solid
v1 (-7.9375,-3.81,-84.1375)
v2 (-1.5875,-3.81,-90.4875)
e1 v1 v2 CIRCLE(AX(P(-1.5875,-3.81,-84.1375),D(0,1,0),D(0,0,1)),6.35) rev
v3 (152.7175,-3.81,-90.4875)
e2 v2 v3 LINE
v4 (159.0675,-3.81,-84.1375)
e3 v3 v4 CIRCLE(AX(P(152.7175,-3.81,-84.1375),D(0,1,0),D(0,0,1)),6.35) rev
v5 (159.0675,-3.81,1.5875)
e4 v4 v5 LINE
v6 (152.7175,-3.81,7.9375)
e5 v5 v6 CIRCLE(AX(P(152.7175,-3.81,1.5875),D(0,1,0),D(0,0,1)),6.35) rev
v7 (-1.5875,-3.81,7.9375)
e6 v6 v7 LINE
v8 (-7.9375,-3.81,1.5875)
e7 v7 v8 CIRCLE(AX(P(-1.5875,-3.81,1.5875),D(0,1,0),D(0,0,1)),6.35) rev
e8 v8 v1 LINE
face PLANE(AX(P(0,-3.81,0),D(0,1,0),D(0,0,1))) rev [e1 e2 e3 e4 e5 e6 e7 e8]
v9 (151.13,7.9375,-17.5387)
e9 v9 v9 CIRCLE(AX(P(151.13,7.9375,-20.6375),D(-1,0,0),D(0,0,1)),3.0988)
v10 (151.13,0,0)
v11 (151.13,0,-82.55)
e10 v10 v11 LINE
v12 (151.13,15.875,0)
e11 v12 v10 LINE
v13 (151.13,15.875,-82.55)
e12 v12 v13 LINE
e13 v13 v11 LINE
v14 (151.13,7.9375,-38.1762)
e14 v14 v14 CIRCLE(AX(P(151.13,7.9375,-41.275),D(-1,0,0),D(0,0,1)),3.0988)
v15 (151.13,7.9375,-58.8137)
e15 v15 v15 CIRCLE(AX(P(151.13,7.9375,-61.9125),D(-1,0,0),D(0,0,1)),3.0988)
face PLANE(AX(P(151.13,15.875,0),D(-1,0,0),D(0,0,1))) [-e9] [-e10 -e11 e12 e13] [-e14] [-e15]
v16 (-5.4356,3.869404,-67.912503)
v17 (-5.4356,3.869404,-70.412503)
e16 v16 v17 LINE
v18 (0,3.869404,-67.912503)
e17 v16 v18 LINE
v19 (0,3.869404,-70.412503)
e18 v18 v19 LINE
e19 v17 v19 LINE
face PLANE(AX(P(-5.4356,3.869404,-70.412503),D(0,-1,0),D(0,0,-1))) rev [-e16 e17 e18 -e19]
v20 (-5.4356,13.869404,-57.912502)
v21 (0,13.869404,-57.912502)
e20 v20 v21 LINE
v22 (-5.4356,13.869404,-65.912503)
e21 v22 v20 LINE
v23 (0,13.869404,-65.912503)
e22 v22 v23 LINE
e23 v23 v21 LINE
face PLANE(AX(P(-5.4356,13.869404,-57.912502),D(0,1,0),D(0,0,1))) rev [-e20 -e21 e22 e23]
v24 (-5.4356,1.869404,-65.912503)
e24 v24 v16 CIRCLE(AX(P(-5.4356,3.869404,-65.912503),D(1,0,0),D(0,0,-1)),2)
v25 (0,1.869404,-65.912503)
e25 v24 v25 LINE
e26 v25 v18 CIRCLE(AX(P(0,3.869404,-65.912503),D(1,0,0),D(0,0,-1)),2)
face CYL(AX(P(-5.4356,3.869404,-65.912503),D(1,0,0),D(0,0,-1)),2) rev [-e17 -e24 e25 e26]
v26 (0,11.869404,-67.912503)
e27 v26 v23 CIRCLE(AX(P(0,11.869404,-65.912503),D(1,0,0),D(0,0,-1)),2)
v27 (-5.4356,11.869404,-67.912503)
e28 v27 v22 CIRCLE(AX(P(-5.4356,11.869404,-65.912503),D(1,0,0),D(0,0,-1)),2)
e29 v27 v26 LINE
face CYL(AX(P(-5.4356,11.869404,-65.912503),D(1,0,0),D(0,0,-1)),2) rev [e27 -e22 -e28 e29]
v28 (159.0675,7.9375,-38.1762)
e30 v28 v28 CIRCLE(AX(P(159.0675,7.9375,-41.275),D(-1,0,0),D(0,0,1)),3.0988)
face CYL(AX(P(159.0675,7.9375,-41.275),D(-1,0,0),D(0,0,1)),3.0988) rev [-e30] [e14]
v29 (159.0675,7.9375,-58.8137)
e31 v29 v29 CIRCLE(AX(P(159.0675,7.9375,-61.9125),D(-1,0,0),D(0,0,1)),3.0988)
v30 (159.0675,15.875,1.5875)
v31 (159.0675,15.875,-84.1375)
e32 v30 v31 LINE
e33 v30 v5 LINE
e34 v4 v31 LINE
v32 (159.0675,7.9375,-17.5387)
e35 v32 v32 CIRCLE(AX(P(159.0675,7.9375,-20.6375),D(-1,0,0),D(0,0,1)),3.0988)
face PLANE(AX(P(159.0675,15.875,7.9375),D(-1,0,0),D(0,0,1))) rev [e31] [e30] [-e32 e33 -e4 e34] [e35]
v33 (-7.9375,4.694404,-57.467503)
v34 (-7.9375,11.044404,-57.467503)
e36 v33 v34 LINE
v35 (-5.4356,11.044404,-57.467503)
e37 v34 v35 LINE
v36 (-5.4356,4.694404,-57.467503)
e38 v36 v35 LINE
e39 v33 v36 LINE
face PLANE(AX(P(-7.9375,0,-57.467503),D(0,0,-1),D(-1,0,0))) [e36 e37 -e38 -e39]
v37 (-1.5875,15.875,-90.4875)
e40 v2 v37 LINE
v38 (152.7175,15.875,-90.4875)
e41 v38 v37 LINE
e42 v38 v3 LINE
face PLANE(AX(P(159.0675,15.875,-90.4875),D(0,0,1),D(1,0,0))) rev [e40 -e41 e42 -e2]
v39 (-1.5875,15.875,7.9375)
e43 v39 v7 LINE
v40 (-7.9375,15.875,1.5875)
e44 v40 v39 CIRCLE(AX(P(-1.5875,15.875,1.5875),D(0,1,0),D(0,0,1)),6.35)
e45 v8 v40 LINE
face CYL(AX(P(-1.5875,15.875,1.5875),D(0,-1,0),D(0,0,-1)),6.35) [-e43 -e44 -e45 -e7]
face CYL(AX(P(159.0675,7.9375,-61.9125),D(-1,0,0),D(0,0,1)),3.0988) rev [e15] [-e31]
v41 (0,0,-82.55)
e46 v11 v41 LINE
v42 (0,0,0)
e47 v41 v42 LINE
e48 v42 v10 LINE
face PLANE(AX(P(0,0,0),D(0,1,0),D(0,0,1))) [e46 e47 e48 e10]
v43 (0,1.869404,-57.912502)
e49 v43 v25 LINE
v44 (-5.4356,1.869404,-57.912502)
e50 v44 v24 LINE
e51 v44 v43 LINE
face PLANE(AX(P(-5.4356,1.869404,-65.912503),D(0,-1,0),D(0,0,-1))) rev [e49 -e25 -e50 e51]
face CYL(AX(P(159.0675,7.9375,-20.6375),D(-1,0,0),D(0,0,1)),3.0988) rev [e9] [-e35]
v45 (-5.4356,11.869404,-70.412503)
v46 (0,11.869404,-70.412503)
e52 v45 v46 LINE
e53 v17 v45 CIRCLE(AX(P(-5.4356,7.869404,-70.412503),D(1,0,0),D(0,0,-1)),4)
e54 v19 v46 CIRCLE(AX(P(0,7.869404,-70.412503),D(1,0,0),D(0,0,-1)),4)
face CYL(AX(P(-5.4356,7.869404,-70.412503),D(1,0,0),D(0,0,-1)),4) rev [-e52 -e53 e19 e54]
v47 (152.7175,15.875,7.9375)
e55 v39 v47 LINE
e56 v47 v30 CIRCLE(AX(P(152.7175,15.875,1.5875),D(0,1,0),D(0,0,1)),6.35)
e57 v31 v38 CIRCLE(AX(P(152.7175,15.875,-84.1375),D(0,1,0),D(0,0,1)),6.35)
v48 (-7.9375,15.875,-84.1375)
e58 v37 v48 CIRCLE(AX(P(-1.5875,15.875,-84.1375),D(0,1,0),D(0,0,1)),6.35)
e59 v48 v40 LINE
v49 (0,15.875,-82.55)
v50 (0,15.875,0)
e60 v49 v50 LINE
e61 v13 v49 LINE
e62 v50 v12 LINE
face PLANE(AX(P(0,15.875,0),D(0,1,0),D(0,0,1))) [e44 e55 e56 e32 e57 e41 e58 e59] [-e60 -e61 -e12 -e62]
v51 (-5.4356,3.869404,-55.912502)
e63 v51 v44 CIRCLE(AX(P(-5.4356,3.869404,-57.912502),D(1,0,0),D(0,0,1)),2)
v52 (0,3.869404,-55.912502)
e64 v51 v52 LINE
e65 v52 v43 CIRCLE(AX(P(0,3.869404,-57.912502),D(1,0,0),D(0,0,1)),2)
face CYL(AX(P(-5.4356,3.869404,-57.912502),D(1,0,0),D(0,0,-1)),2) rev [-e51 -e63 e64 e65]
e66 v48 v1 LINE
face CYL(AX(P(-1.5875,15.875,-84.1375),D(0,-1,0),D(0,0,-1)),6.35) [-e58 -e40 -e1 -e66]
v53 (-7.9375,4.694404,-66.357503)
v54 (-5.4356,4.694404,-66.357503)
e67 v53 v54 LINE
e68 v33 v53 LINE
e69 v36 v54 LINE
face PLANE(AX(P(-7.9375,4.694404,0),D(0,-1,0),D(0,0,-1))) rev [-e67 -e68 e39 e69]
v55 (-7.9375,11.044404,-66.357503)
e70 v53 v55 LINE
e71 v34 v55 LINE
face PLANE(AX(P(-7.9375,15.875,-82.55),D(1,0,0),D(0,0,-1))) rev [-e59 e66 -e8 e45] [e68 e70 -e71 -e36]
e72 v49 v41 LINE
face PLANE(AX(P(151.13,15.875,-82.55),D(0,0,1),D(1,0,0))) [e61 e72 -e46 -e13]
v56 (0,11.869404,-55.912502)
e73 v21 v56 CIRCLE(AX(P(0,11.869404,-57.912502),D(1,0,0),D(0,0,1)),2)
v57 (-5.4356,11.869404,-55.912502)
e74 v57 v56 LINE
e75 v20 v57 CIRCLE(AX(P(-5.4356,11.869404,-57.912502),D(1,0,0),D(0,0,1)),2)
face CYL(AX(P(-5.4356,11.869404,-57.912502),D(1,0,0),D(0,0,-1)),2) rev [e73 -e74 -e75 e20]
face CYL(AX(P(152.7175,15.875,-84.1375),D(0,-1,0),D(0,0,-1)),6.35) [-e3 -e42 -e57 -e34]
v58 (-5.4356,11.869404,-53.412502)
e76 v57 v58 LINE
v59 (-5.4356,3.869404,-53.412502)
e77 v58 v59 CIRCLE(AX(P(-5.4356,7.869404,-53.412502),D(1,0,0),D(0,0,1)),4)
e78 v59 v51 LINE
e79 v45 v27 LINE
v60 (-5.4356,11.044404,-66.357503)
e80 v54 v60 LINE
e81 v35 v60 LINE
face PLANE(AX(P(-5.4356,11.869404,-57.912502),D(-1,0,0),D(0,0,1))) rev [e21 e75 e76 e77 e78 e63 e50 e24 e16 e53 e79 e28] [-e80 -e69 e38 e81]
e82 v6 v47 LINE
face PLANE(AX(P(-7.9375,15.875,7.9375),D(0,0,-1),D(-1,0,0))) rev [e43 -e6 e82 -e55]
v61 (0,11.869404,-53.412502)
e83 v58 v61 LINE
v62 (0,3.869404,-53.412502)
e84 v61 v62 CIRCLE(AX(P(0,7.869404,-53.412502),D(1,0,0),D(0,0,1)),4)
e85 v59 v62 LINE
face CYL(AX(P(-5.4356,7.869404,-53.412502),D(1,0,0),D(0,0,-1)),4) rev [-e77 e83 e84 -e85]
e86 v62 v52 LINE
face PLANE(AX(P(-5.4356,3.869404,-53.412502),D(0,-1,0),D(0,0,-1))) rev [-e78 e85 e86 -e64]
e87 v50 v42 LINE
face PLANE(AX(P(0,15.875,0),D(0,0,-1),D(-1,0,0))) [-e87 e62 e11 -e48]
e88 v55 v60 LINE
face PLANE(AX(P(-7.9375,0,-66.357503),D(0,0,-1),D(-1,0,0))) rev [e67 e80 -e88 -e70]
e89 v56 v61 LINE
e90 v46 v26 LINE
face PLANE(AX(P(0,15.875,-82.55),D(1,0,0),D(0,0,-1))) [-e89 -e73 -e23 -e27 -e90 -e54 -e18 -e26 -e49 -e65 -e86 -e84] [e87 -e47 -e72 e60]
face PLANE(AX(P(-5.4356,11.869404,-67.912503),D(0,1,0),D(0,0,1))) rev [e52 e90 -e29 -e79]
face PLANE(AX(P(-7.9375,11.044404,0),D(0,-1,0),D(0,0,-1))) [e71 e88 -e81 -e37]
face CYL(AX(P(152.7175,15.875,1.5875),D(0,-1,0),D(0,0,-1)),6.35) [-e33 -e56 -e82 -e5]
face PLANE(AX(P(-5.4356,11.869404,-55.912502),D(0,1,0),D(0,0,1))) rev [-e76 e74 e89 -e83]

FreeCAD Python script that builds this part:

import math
import FreeCAD as App
import Part
import Sketcher
from FreeCAD import Vector
Q = App.Units.Quantity


def edges_at(feature, points):
    """Names of the edges that pass closest to the given points."""
    edges = feature.Shape.Edges
    near = lambda p: min(range(len(edges)), key=lambda i: edges[i].distToShape(Part.Vertex(*p))[0])
    return sorted({f"Edge{near(p) + 1}" for p in points})


def add_polygon(sketch, points):
    """Adds a closed chain of lines whose ends are joined by coincident constraints."""
    first, n = sketch.GeometryCount, len(points)
    for a, b in zip(points, points[1:] + points[:1]):
        sketch.addGeometry(Part.LineSegment(App.Vector(*a, 0), App.Vector(*b, 0)), False)
    for i in range(n):
        sketch.addConstraint(Sketcher.Constraint("Coincident", first + i, 2, first + (i + 1) % n, 1))

doc = App.newDocument("Part")
body = doc.addObject("PartDesign::Body", "Body")

# Sketch on XZ plane
sketch1 = doc.addObject("Sketcher::SketchObject", "Sketch")
body.addObject(sketch1)
sketch1.AttachmentSupport = (doc.XZ_Plane, [""])
sketch1.MapMode = "FlatFace"
add_polygon(sketch1, [(-8, 8), (159, 8), (159, -90), (-8, -90)])  # lines 0-3
add_polygon(sketch1, [(151, 0), (0, 0), (0, -83), (151, -83)])  # lines 4-7
sketch1.addConstraint([
    Sketcher.Constraint("Horizontal", 0),
    Sketcher.Constraint("Vertical", 1),
    Sketcher.Constraint("Horizontal", 2),
    Sketcher.Constraint("Vertical", 3),
    Sketcher.Constraint("Horizontal", 4),
    Sketcher.Constraint("Vertical", 5),
    Sketcher.Constraint("Horizontal", 6),
    Sketcher.Constraint("Vertical", 7),
    Sketcher.Constraint("Coincident", 4, 2, -1, 1),
    Sketcher.Constraint("DistanceX", 4, 2, 4, 1, Q("5.95 in")),
    Sketcher.Constraint("DistanceY", 5, 2, 5, 1, Q("3.25 in")),
    Sketcher.Constraint("DistanceX", 0, 1, 0, 2, Q("6.575 in")),
    Sketcher.Constraint("DistanceY", 1, 2, 1, 1, Q("3.875 in")),
    Sketcher.Constraint("DistanceY", -1, 1, 0, 2, Q("0.3125 in")),
    Sketcher.Constraint("DistanceX", 2, 2, -1, 1, Q("0.3125 in")),
])
pad1 = doc.addObject("PartDesign::Pad", "Pad")
body.addObject(pad1)
pad1.Profile = sketch1
pad1.Length = Q("0.625 in")
pad1.Reversed = True

# Sketch on XZ plane
sketch2 = doc.addObject("Sketcher::SketchObject", "Sketch001")
body.addObject(sketch2)
sketch2.AttachmentSupport = (doc.XZ_Plane, [""])
sketch2.MapMode = "FlatFace"
add_polygon(sketch2, [(-8, 8), (-8, -90), (159, -90), (159, 8)])  # lines 0-3
sketch2.addConstraint([
    Sketcher.Constraint("Vertical", 0),
    Sketcher.Constraint("Horizontal", 1),
    Sketcher.Constraint("Vertical", 2),
    Sketcher.Constraint("Horizontal", 3),
    Sketcher.Constraint("DistanceX", 1, 1, 1, 2, Q("6.575 in")),
    Sketcher.Constraint("DistanceY", 0, 2, 0, 1, Q("3.875 in")),
    Sketcher.Constraint("DistanceX", 0, 2, -1, 1, Q("0.3125 in")),
    Sketcher.Constraint("DistanceY", 0, 2, -1, 1, Q("3.5625 in")),
])
pad2 = doc.addObject("PartDesign::Pad", "Pad001")
body.addObject(pad2)
pad2.Profile = sketch2
pad2.Length = Q("0.15 in")
doc.recompute()

fillet = doc.addObject("PartDesign::Fillet", "Fillet")
body.addObject(fillet)
fillet.Base = (pad2, edges_at(pad2, [
    (-7.938, 6.032, 7.938),
    (-7.938, 6.032, -90.487),
    (159.067, 6.032, -90.487),
    (159.067, 6.032, 7.938),
]))
fillet.Radius = Q("0.25 in")

# Sketch on YZ plane
sketch3 = doc.addObject("Sketcher::SketchObject", "Sketch002")
body.addObject(sketch3)
sketch3.AttachmentSupport = (doc.YZ_Plane, [""])
sketch3.MapMode = "FlatFace"
sketch3.AttachmentOffset = App.Placement(Vector(0, 0, 5.95 * 25.4), App.Rotation())
sketch3.addGeometry([
    Part.Circle(Vector(7.9, -61.9, 0), Vector(0, 0, 1), 3.1),  # 0
    Part.ArcOfCircle(Part.Circle(Vector(7.9, -41.3, 0), Vector(0, 0, 1), 3.1), math.radians(90), math.radians(180)),  # 1
    Part.ArcOfCircle(Part.Circle(Vector(7.9, -41.3, 0), Vector(0, 0, 1), 3.1), math.radians(0), math.radians(90)),  # 2
    Part.ArcOfCircle(Part.Circle(Vector(7.9, -41.3, 0), Vector(0, 0, 1), 3.1), math.radians(-90), math.radians(0)),  # 3
    Part.ArcOfCircle(Part.Circle(Vector(7.9, -41.3, 0), Vector(0, 0, 1), 3.1), math.radians(180), math.radians(270)),  # 4
    Part.Circle(Vector(7.9, -20.6, 0), Vector(0, 0, 1), 3.1),  # 5
], False)
sketch3.addConstraint([
    Sketcher.Constraint("Tangent", 1, 1, 2, 2),
    Sketcher.Constraint("Tangent", 2, 1, 3, 2),
    Sketcher.Constraint("Tangent", 3, 1, 4, 2),
    Sketcher.Constraint("Tangent", 4, 1, 1, 2),
    Sketcher.Constraint("Equal", 0, 1),
    Sketcher.Constraint("Equal", 1, 2),
    Sketcher.Constraint("Equal", 4, 5),
    Sketcher.Constraint("Horizontal", 4, 3, 2, 1),
    Sketcher.Constraint("Horizontal", 2, 1, 4, 1),
    Sketcher.Constraint("Vertical", 0, 3, 1, 3),
    Sketcher.Constraint("Vertical", 4, 3, 5, 3),
    Sketcher.Constraint("Vertical", 5, 3, 1, 1),
    Sketcher.Constraint("Vertical", 1, 1, 3, 1),
    Sketcher.Constraint("Diameter", 0, Q("0.244 in")),
    Sketcher.Constraint("DistanceX", -1, 1, 0, 3, Q("0.3125 in")),
    Sketcher.Constraint("DistanceY", 0, 3, -1, 1, Q("2.4375 in")),
    Sketcher.Constraint("DistanceY", 1, 3, -1, 1, Q("1.625 in")),
    Sketcher.Constraint("DistanceY", 5, 3, -1, 1, Q("0.8125 in")),
])
pocket1 = doc.addObject("PartDesign::Pocket", "Pocket")
body.addObject(pocket1)
pocket1.Profile = sketch3
pocket1.Type = "ThroughAll"
pocket1.Reversed = True

# Sketch on YZ plane
sketch4 = doc.addObject("Sketcher::SketchObject", "Sketch003")
body.addObject(sketch4)
sketch4.AttachmentSupport = (doc.YZ_Plane, [""])
sketch4.MapMode = "FlatFace"
sketch4.addGeometry([
    Part.LineSegment(Vector(13.9, -65.9, 0), Vector(13.9, -57.9, 0)),  # 0
    Part.ArcOfCircle(Part.Circle(Vector(11.9, -57.9, 0), Vector(0, 0, 1), 2), math.radians(0), math.radians(90)),  # 1
    Part.LineSegment(Vector(11.9, -55.9, 0), Vector(11.9, -53.4, 0)),  # 2
    Part.ArcOfCircle(Part.Circle(Vector(7.9, -53.4, 0), Vector(0, 0, 1), 4), math.radians(0), math.radians(180)),  # 3
    Part.LineSegment(Vector(3.9, -53.4, 0), Vector(3.9, -55.9, 0)),  # 4
    Part.ArcOfCircle(Part.Circle(Vector(3.9, -57.9, 0), Vector(0, 0, 1), 2), math.radians(90), math.radians(180)),  # 5
    Part.LineSegment(Vector(1.9, -57.9, 0), Vector(1.9, -65.9, 0)),  # 6
    Part.ArcOfCircle(Part.Circle(Vector(3.9, -65.9, 0), Vector(0, 0, 1), 2), math.radians(180), math.radians(270)),  # 7
    Part.LineSegment(Vector(3.9, -67.9, 0), Vector(3.9, -70.4, 0)),  # 8
    Part.ArcOfCircle(Part.Circle(Vector(7.9, -70.4, 0), Vector(0, 0, 1), 4), math.radians(180), math.radians(360)),  # 9
    Part.LineSegment(Vector(11.9, -70.4, 0), Vector(11.9, -67.9, 0)),  # 10
    Part.ArcOfCircle(Part.Circle(Vector(11.9, -65.9, 0), Vector(0, 0, 1), 2), math.radians(-90), math.radians(0)),  # 11
], False)
sketch4.addConstraint([
    Sketcher.Constraint("Tangent", 0, 2, 1, 1),
    Sketcher.Constraint("Coincident", 1, 2, 2, 1),
    Sketcher.Constraint("Tangent", 2, 2, 3, 1),
    Sketcher.Constraint("Tangent", 3, 2, 4, 1),
    Sketcher.Constraint("Coincident", 4, 2, 5, 1),
    Sketcher.Constraint("Tangent", 5, 2, 6, 1),
    Sketcher.Constraint("Tangent", 6, 2, 7, 1),
    Sketcher.Constraint("Coincident", 7, 2, 8, 1),
    Sketcher.Constraint("Tangent", 8, 2, 9, 1),
    Sketcher.Constraint("Tangent", 9, 2, 10, 1),
    Sketcher.Constraint("Coincident", 10, 2, 11, 1),
    Sketcher.Constraint("Tangent", 11, 2, 0, 1),
    Sketcher.Constraint("Vertical", 0),
    Sketcher.Constraint("Vertical", 2),
    Sketcher.Constraint("Vertical", 4),
    Sketcher.Constraint("Vertical", 6),
    Sketcher.Constraint("Vertical", 8),
    Sketcher.Constraint("Vertical", 10),
    Sketcher.Constraint("Equal", 1, 5),
    Sketcher.Constraint("Equal", 5, 7),
    Sketcher.Constraint("Equal", 3, 9),
    Sketcher.Constraint("Equal", 7, 11),
    Sketcher.Constraint("Horizontal", 1, 3, 5, 3),
    Sketcher.Constraint("Horizontal", 7, 3, 11, 3),
    Sketcher.Constraint("Vertical", 3, 3, 9, 3),
    Sketcher.Constraint("Vertical", 11, 3, 1, 2),
    Sketcher.Constraint("Vertical", 7, 3, 3, 2),
    Sketcher.Constraint("Equal", 4, 8),
    Sketcher.Constraint("Radius", 1, Q("2 mm")),
    Sketcher.Constraint("Radius", 3, Q("4 mm")),
    Sketcher.Constraint("DistanceY", 0, 1, 0, 2, Q("8 mm")),
    Sketcher.Constraint("DistanceY", 2, 1, 2, 2, Q("2.5 mm")),
    Sketcher.Constraint("DistanceX", -1, 1, 1, 3, Q("11.869404 mm")),
    Sketcher.Constraint("DistanceY", 1, 3, -1, 1, Q("57.912502 mm")),
])
pocket2 = doc.addObject("PartDesign::Pocket", "Pocket001")
body.addObject(pocket2)
pocket2.Profile = sketch4
pocket2.Length = Q("0.214 in")

# Sketch on YZ plane
sketch5 = doc.addObject("Sketcher::SketchObject", "Sketch004")
body.addObject(sketch5)
sketch5.AttachmentSupport = (doc.YZ_Plane, [""])
sketch5.MapMode = "FlatFace"
sketch5.AttachmentOffset = App.Placement(Vector(0, 0, -0.214 * 25.4), App.Rotation())
add_polygon(sketch5, [(11, -57), (5, -57), (5, -66), (11, -66)])  # lines 0-3
sketch5.addConstraint([
    Sketcher.Constraint("Horizontal", 0),
    Sketcher.Constraint("Vertical", 1),
    Sketcher.Constraint("Horizontal", 2),
    Sketcher.Constraint("Vertical", 3),
    Sketcher.Constraint("DistanceX", 0, 2, 0, 1, Q("0.25 in")),
    Sketcher.Constraint("DistanceY", 1, 2, 1, 1, Q("0.35 in")),
    Sketcher.Constraint("DistanceY", 0, 2, -1, 1, Q("2.2625001 in")),
    Sketcher.Constraint("DistanceX", -1, 1, 0, 2, Q("4.694404 mm")),
])
pocket3 = doc.addObject("PartDesign::Pocket", "Pocket002")
body.addObject(pocket3)
pocket3.Profile = sketch5
pocket3.Type = "ThroughAll"

doc.recompute()
